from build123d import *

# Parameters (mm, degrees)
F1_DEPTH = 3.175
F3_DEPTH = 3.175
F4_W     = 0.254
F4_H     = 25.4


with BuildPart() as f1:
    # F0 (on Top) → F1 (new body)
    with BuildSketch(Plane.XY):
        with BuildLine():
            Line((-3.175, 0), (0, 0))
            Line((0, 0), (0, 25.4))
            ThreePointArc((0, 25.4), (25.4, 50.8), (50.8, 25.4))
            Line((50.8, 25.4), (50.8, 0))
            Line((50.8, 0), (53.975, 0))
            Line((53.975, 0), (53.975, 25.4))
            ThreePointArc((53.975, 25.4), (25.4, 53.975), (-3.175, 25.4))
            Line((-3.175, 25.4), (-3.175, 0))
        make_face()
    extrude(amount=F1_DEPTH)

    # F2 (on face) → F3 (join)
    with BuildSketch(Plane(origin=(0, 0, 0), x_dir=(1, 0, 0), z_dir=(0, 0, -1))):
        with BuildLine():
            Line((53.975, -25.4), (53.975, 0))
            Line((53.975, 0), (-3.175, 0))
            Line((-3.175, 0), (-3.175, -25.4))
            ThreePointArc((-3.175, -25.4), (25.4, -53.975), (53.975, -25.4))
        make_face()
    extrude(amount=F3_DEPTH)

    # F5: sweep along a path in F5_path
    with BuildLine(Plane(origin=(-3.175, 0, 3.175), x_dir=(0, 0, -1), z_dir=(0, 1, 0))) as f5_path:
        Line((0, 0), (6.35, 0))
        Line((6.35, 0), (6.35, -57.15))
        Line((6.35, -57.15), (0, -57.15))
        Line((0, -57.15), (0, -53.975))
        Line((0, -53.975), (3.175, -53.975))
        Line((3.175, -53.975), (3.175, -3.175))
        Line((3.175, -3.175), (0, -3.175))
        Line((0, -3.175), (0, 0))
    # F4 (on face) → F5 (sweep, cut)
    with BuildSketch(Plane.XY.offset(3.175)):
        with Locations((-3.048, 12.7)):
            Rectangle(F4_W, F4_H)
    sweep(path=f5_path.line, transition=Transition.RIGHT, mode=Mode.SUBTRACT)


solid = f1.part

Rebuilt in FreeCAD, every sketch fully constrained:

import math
import FreeCAD as App
import Part
import Sketcher

V = App.Vector
Q = App.Units.Quantity


def add_polygon(sketch, points):
    """Adds a closed chain of lines whose ends are joined by coincident constraints."""
    first, n = sketch.GeometryCount, len(points)
    for a, b in zip(points, points[1:] + points[:1]):
        sketch.addGeometry(Part.LineSegment(App.Vector(*a, 0), App.Vector(*b, 0)), False)
    for i in range(n):
        sketch.addConstraint(Sketcher.Constraint("Coincident", first + i, 2, first + (i + 1) % n, 1))

doc = App.newDocument("Part")
params = doc.addObject("Spreadsheet::Sheet", "Params")
for row, (alias, value) in enumerate([
    ("sketch1_radius", "1 in"),
    ("sketch1_height", "1 in"),
    ("sketch1_radius2", "1.125 in"),
    ("pad1_length", "0.125 in"),
    ("sketch2_height", "1 in"),
    ("sketch2_radius", "1.125 in"),
    ("pad2_length", "0.125 in"),
    ("sketch3_height", "1 in"),
    ("sketch3_width", "0.01 in"),
    ("sketch4_width", "2 in"),
    ("sketch4_width2", "2.25 in"),
    ("sketch4_height", "0.25 in"),
], start=1):
    params.set(f"A{row}", alias)
    params.set(f"B{row}", "=" + value)
    params.setAlias(f"B{row}", alias)

body = doc.addObject("PartDesign::Body", "Body")

# Sketch on XY plane
sketch1 = doc.addObject("Sketcher::SketchObject", "Sketch")
body.addObject(sketch1)
sketch1.AttachmentSupport = (doc.XY_Plane, [""])
sketch1.MapMode = "FlatFace"
sketch1.addGeometry(Part.LineSegment(V(-3.2, 0, 0), V(0, 0, 0)), False)
sketch1.addGeometry(Part.LineSegment(V(0, 0, 0), V(0, 25.4, 0)), False)
sketch1.addGeometry(Part.ArcOfCircle(Part.Circle(V(25.4, 25.4, 0), V(0, 0, 1), 25.4), math.radians(0), math.radians(180)), False)
sketch1.addGeometry(Part.LineSegment(V(50.8, 25.4, 0), V(50.8, 0, 0)), False)
sketch1.addGeometry(Part.LineSegment(V(50.8, 0, 0), V(54, 0, 0)), False)
sketch1.addGeometry(Part.LineSegment(V(54, 0, 0), V(54, 25.4, 0)), False)
sketch1.addGeometry(Part.ArcOfCircle(Part.Circle(V(25.4, 25.4, 0), V(0, 0, 1), 28.6), math.radians(0), math.radians(180)), False)
sketch1.addGeometry(Part.LineSegment(V(-3.2, 25.4, 0), V(-3.2, 0, 0)), False)
sketch1.addConstraint(Sketcher.Constraint("Coincident", 0, 2, 1, 1))
sketch1.addConstraint(Sketcher.Constraint("Tangent", 1, 2, 2, 2))
sketch1.addConstraint(Sketcher.Constraint("Tangent", 2, 1, 3, 1))
sketch1.addConstraint(Sketcher.Constraint("Coincident", 3, 2, 4, 1))
sketch1.addConstraint(Sketcher.Constraint("Coincident", 4, 2, 5, 1))
sketch1.addConstraint(Sketcher.Constraint("Tangent", 5, 2, 6, 1))
sketch1.addConstraint(Sketcher.Constraint("Tangent", 6, 2, 7, 1))
sketch1.addConstraint(Sketcher.Constraint("Coincident", 7, 2, 0, 1))
sketch1.addConstraint(Sketcher.Constraint("Horizontal", 0))
sketch1.addConstraint(Sketcher.Constraint("Vertical", 1))
sketch1.addConstraint(Sketcher.Constraint("Vertical", 3))
sketch1.addConstraint(Sketcher.Constraint("Horizontal", 4))
sketch1.addConstraint(Sketcher.Constraint("Vertical", 5))
sketch1.addConstraint(Sketcher.Constraint("Vertical", 7))
sketch1.addConstraint(Sketcher.Constraint("Coincident", 0, 2, -1, 1))
sketch1.addConstraint(Sketcher.Constraint("Coincident", 6, 3, 2, 3))
sketch1.addConstraint(Sketcher.Constraint("PointOnObject", 3, 2, -1))
sketch1.addConstraint(Sketcher.Constraint("Radius", 2, Q("1 in")))
sketch1.addConstraint(Sketcher.Constraint("DistanceY", 1, 1, 1, 2, Q("1 in")))
sketch1.addConstraint(Sketcher.Constraint("Radius", 6, Q("1.125 in")))
sketch1.setExpression("Constraints[17]", "Params.sketch1_radius")
sketch1.setExpression("Constraints[18]", "Params.sketch1_height")
sketch1.setExpression("Constraints[19]", "Params.sketch1_radius2")
pad1 = doc.addObject("PartDesign::Pad", "Pad")
body.addObject(pad1)
pad1.Profile = sketch1
pad1.setExpression("Length", "Params.pad1_length")

# Sketch on XY plane
sketch2 = doc.addObject("Sketcher::SketchObject", "Sketch001")
body.addObject(sketch2)
sketch2.AttachmentSupport = (doc.XY_Plane, [""])
sketch2.MapMode = "FlatFace"
sketch2.addGeometry(Part.LineSegment(V(54, 25, 0), V(54, 0, 0)), False)
sketch2.addGeometry(Part.LineSegment(V(54, 0, 0), V(-3, 0, 0)), False)
sketch2.addGeometry(Part.LineSegment(V(-3, 0, 0), V(-3, 25, 0)), False)
sketch2.addGeometry(Part.ArcOfCircle(Part.Circle(V(25, 25, 0), V(0, 0, 1), 29), math.radians(0), math.radians(180)), False)
sketch2.addConstraint(Sketcher.Constraint("Coincident", 0, 2, 1, 1))
sketch2.addConstraint(Sketcher.Constraint("Coincident", 1, 2, 2, 1))
sketch2.addConstraint(Sketcher.Constraint("Tangent", 2, 2, 3, 2))
sketch2.addConstraint(Sketcher.Constraint("Tangent", 3, 1, 0, 1))
sketch2.addConstraint(Sketcher.Constraint("Vertical", 0))
sketch2.addConstraint(Sketcher.Constraint("Horizontal", 1))
sketch2.addConstraint(Sketcher.Constraint("Vertical", 2))
sketch2.addConstraint(Sketcher.Constraint("PointOnObject", 0, 2, -1))
sketch2.addConstraint(Sketcher.Constraint("DistanceY", 0, 2, 0, 1, Q("1 in")))
sketch2.addConstraint(Sketcher.Constraint("DistanceX", -1, 1, 3, 3, Q("1 in")))
sketch2.addConstraint(Sketcher.Constraint("Radius", 3, Q("1.125 in")))
sketch2.setExpression("Constraints[8]", "Params.sketch2_height")
sketch2.setExpression("Constraints[10]", "Params.sketch2_radius")
pad2 = doc.addObject("PartDesign::Pad", "Pad001")
body.addObject(pad2)
pad2.Profile = sketch2
pad2.setExpression("Length", "Params.pad2_length")
pad2.Reversed = True

# Sketch on XY plane
sketch3 = doc.addObject("Sketcher::SketchObject", "Sketch002")
body.addObject(sketch3)
sketch3.AttachmentSupport = (doc.XY_Plane, [""])
sketch3.MapMode = "FlatFace"
sketch3.AttachmentOffset = App.Placement(V(0, 0, 0.125 * 25.4), App.Rotation())
add_polygon(sketch3, [(-3.17, 25.4), (-3.17, 0), (-2.92, 0), (-2.92, 25.4)])  # lines 0-3
sketch3.addConstraint(Sketcher.Constraint("Vertical", 0))
sketch3.addConstraint(Sketcher.Constraint("Horizontal", 1))
sketch3.addConstraint(Sketcher.Constraint("Vertical", 2))
sketch3.addConstraint(Sketcher.Constraint("Horizontal", 3))
sketch3.addConstraint(Sketcher.Constraint("PointOnObject", 0, 2, -1))
sketch3.addConstraint(Sketcher.Constraint("DistanceY", 0, 2, 0, 1, Q("1 in")))
sketch3.addConstraint(Sketcher.Constraint("DistanceX", 1, 1, 1, 2, Q("0.01 in")))
sketch3.addConstraint(Sketcher.Constraint("DistanceX", 0, 2, -1, 1, Q("0.125 in")))
sketch3.setExpression("Constraints[9]", "Params.sketch3_height")
sketch3.setExpression("Constraints[10]", "Params.sketch3_width")

# Sketch on XZ plane
sketch4 = doc.addObject("Sketcher::SketchObject", "Sketch003")
body.addObject(sketch4)
sketch4.AttachmentSupport = (doc.XZ_Plane, [""])
sketch4.MapMode = "FlatFace"
add_polygon(sketch4, [(-3.2, 3.2), (-3.2, -3.2), (54, -3.2), (54, 3.2), (50.8, 3.2), (50.8, 0), (0, 0), (0, 3.2)])  # lines 0-7
sketch4.addConstraint(Sketcher.Constraint("Vertical", 0))
sketch4.addConstraint(Sketcher.Constraint("Horizontal", 1))
sketch4.addConstraint(Sketcher.Constraint("Vertical", 2))
sketch4.addConstraint(Sketcher.Constraint("Horizontal", 3))
sketch4.addConstraint(Sketcher.Constraint("Vertical", 4))
sketch4.addConstraint(Sketcher.Constraint("Horizontal", 5))
sketch4.addConstraint(Sketcher.Constraint("Vertical", 6))
sketch4.addConstraint(Sketcher.Constraint("Horizontal", 7))
sketch4.addConstraint(Sketcher.Constraint("Coincident", 5, 2, -1, 1))
sketch4.addConstraint(Sketcher.Constraint("Horizontal", 3, 2, 6, 2))
sketch4.addConstraint(Sketcher.Constraint("Equal", 3, 7))
sketch4.addConstraint(Sketcher.Constraint("Equal", 7, 4))
sketch4.addConstraint(Sketcher.Constraint("DistanceX", 5, 2, 5, 1, Q("2 in")))
sketch4.addConstraint(Sketcher.Constraint("DistanceX", 1, 1, 1, 2, Q("2.25 in")))
sketch4.addConstraint(Sketcher.Constraint("DistanceY", 0, 2, 0, 1, Q("0.25 in")))
sketch4.setExpression("Constraints[20]", "Params.sketch4_width")
sketch4.setExpression("Constraints[21]", "Params.sketch4_width2")
sketch4.setExpression("Constraints[22]", "Params.sketch4_height")
doc.recompute()

subtractivepipe = doc.addObject("PartDesign::SubtractivePipe", "SubtractivePipe")
body.addObject(subtractivepipe)
subtractivepipe.Profile = sketch3
subtractivepipe.Spine = (sketch4, ["Edge1", "Edge2", "Edge3", "Edge4", "Edge5", "Edge6", "Edge7", "Edge8"])
subtractivepipe.Transition = "Right corner"

doc.recompute()
